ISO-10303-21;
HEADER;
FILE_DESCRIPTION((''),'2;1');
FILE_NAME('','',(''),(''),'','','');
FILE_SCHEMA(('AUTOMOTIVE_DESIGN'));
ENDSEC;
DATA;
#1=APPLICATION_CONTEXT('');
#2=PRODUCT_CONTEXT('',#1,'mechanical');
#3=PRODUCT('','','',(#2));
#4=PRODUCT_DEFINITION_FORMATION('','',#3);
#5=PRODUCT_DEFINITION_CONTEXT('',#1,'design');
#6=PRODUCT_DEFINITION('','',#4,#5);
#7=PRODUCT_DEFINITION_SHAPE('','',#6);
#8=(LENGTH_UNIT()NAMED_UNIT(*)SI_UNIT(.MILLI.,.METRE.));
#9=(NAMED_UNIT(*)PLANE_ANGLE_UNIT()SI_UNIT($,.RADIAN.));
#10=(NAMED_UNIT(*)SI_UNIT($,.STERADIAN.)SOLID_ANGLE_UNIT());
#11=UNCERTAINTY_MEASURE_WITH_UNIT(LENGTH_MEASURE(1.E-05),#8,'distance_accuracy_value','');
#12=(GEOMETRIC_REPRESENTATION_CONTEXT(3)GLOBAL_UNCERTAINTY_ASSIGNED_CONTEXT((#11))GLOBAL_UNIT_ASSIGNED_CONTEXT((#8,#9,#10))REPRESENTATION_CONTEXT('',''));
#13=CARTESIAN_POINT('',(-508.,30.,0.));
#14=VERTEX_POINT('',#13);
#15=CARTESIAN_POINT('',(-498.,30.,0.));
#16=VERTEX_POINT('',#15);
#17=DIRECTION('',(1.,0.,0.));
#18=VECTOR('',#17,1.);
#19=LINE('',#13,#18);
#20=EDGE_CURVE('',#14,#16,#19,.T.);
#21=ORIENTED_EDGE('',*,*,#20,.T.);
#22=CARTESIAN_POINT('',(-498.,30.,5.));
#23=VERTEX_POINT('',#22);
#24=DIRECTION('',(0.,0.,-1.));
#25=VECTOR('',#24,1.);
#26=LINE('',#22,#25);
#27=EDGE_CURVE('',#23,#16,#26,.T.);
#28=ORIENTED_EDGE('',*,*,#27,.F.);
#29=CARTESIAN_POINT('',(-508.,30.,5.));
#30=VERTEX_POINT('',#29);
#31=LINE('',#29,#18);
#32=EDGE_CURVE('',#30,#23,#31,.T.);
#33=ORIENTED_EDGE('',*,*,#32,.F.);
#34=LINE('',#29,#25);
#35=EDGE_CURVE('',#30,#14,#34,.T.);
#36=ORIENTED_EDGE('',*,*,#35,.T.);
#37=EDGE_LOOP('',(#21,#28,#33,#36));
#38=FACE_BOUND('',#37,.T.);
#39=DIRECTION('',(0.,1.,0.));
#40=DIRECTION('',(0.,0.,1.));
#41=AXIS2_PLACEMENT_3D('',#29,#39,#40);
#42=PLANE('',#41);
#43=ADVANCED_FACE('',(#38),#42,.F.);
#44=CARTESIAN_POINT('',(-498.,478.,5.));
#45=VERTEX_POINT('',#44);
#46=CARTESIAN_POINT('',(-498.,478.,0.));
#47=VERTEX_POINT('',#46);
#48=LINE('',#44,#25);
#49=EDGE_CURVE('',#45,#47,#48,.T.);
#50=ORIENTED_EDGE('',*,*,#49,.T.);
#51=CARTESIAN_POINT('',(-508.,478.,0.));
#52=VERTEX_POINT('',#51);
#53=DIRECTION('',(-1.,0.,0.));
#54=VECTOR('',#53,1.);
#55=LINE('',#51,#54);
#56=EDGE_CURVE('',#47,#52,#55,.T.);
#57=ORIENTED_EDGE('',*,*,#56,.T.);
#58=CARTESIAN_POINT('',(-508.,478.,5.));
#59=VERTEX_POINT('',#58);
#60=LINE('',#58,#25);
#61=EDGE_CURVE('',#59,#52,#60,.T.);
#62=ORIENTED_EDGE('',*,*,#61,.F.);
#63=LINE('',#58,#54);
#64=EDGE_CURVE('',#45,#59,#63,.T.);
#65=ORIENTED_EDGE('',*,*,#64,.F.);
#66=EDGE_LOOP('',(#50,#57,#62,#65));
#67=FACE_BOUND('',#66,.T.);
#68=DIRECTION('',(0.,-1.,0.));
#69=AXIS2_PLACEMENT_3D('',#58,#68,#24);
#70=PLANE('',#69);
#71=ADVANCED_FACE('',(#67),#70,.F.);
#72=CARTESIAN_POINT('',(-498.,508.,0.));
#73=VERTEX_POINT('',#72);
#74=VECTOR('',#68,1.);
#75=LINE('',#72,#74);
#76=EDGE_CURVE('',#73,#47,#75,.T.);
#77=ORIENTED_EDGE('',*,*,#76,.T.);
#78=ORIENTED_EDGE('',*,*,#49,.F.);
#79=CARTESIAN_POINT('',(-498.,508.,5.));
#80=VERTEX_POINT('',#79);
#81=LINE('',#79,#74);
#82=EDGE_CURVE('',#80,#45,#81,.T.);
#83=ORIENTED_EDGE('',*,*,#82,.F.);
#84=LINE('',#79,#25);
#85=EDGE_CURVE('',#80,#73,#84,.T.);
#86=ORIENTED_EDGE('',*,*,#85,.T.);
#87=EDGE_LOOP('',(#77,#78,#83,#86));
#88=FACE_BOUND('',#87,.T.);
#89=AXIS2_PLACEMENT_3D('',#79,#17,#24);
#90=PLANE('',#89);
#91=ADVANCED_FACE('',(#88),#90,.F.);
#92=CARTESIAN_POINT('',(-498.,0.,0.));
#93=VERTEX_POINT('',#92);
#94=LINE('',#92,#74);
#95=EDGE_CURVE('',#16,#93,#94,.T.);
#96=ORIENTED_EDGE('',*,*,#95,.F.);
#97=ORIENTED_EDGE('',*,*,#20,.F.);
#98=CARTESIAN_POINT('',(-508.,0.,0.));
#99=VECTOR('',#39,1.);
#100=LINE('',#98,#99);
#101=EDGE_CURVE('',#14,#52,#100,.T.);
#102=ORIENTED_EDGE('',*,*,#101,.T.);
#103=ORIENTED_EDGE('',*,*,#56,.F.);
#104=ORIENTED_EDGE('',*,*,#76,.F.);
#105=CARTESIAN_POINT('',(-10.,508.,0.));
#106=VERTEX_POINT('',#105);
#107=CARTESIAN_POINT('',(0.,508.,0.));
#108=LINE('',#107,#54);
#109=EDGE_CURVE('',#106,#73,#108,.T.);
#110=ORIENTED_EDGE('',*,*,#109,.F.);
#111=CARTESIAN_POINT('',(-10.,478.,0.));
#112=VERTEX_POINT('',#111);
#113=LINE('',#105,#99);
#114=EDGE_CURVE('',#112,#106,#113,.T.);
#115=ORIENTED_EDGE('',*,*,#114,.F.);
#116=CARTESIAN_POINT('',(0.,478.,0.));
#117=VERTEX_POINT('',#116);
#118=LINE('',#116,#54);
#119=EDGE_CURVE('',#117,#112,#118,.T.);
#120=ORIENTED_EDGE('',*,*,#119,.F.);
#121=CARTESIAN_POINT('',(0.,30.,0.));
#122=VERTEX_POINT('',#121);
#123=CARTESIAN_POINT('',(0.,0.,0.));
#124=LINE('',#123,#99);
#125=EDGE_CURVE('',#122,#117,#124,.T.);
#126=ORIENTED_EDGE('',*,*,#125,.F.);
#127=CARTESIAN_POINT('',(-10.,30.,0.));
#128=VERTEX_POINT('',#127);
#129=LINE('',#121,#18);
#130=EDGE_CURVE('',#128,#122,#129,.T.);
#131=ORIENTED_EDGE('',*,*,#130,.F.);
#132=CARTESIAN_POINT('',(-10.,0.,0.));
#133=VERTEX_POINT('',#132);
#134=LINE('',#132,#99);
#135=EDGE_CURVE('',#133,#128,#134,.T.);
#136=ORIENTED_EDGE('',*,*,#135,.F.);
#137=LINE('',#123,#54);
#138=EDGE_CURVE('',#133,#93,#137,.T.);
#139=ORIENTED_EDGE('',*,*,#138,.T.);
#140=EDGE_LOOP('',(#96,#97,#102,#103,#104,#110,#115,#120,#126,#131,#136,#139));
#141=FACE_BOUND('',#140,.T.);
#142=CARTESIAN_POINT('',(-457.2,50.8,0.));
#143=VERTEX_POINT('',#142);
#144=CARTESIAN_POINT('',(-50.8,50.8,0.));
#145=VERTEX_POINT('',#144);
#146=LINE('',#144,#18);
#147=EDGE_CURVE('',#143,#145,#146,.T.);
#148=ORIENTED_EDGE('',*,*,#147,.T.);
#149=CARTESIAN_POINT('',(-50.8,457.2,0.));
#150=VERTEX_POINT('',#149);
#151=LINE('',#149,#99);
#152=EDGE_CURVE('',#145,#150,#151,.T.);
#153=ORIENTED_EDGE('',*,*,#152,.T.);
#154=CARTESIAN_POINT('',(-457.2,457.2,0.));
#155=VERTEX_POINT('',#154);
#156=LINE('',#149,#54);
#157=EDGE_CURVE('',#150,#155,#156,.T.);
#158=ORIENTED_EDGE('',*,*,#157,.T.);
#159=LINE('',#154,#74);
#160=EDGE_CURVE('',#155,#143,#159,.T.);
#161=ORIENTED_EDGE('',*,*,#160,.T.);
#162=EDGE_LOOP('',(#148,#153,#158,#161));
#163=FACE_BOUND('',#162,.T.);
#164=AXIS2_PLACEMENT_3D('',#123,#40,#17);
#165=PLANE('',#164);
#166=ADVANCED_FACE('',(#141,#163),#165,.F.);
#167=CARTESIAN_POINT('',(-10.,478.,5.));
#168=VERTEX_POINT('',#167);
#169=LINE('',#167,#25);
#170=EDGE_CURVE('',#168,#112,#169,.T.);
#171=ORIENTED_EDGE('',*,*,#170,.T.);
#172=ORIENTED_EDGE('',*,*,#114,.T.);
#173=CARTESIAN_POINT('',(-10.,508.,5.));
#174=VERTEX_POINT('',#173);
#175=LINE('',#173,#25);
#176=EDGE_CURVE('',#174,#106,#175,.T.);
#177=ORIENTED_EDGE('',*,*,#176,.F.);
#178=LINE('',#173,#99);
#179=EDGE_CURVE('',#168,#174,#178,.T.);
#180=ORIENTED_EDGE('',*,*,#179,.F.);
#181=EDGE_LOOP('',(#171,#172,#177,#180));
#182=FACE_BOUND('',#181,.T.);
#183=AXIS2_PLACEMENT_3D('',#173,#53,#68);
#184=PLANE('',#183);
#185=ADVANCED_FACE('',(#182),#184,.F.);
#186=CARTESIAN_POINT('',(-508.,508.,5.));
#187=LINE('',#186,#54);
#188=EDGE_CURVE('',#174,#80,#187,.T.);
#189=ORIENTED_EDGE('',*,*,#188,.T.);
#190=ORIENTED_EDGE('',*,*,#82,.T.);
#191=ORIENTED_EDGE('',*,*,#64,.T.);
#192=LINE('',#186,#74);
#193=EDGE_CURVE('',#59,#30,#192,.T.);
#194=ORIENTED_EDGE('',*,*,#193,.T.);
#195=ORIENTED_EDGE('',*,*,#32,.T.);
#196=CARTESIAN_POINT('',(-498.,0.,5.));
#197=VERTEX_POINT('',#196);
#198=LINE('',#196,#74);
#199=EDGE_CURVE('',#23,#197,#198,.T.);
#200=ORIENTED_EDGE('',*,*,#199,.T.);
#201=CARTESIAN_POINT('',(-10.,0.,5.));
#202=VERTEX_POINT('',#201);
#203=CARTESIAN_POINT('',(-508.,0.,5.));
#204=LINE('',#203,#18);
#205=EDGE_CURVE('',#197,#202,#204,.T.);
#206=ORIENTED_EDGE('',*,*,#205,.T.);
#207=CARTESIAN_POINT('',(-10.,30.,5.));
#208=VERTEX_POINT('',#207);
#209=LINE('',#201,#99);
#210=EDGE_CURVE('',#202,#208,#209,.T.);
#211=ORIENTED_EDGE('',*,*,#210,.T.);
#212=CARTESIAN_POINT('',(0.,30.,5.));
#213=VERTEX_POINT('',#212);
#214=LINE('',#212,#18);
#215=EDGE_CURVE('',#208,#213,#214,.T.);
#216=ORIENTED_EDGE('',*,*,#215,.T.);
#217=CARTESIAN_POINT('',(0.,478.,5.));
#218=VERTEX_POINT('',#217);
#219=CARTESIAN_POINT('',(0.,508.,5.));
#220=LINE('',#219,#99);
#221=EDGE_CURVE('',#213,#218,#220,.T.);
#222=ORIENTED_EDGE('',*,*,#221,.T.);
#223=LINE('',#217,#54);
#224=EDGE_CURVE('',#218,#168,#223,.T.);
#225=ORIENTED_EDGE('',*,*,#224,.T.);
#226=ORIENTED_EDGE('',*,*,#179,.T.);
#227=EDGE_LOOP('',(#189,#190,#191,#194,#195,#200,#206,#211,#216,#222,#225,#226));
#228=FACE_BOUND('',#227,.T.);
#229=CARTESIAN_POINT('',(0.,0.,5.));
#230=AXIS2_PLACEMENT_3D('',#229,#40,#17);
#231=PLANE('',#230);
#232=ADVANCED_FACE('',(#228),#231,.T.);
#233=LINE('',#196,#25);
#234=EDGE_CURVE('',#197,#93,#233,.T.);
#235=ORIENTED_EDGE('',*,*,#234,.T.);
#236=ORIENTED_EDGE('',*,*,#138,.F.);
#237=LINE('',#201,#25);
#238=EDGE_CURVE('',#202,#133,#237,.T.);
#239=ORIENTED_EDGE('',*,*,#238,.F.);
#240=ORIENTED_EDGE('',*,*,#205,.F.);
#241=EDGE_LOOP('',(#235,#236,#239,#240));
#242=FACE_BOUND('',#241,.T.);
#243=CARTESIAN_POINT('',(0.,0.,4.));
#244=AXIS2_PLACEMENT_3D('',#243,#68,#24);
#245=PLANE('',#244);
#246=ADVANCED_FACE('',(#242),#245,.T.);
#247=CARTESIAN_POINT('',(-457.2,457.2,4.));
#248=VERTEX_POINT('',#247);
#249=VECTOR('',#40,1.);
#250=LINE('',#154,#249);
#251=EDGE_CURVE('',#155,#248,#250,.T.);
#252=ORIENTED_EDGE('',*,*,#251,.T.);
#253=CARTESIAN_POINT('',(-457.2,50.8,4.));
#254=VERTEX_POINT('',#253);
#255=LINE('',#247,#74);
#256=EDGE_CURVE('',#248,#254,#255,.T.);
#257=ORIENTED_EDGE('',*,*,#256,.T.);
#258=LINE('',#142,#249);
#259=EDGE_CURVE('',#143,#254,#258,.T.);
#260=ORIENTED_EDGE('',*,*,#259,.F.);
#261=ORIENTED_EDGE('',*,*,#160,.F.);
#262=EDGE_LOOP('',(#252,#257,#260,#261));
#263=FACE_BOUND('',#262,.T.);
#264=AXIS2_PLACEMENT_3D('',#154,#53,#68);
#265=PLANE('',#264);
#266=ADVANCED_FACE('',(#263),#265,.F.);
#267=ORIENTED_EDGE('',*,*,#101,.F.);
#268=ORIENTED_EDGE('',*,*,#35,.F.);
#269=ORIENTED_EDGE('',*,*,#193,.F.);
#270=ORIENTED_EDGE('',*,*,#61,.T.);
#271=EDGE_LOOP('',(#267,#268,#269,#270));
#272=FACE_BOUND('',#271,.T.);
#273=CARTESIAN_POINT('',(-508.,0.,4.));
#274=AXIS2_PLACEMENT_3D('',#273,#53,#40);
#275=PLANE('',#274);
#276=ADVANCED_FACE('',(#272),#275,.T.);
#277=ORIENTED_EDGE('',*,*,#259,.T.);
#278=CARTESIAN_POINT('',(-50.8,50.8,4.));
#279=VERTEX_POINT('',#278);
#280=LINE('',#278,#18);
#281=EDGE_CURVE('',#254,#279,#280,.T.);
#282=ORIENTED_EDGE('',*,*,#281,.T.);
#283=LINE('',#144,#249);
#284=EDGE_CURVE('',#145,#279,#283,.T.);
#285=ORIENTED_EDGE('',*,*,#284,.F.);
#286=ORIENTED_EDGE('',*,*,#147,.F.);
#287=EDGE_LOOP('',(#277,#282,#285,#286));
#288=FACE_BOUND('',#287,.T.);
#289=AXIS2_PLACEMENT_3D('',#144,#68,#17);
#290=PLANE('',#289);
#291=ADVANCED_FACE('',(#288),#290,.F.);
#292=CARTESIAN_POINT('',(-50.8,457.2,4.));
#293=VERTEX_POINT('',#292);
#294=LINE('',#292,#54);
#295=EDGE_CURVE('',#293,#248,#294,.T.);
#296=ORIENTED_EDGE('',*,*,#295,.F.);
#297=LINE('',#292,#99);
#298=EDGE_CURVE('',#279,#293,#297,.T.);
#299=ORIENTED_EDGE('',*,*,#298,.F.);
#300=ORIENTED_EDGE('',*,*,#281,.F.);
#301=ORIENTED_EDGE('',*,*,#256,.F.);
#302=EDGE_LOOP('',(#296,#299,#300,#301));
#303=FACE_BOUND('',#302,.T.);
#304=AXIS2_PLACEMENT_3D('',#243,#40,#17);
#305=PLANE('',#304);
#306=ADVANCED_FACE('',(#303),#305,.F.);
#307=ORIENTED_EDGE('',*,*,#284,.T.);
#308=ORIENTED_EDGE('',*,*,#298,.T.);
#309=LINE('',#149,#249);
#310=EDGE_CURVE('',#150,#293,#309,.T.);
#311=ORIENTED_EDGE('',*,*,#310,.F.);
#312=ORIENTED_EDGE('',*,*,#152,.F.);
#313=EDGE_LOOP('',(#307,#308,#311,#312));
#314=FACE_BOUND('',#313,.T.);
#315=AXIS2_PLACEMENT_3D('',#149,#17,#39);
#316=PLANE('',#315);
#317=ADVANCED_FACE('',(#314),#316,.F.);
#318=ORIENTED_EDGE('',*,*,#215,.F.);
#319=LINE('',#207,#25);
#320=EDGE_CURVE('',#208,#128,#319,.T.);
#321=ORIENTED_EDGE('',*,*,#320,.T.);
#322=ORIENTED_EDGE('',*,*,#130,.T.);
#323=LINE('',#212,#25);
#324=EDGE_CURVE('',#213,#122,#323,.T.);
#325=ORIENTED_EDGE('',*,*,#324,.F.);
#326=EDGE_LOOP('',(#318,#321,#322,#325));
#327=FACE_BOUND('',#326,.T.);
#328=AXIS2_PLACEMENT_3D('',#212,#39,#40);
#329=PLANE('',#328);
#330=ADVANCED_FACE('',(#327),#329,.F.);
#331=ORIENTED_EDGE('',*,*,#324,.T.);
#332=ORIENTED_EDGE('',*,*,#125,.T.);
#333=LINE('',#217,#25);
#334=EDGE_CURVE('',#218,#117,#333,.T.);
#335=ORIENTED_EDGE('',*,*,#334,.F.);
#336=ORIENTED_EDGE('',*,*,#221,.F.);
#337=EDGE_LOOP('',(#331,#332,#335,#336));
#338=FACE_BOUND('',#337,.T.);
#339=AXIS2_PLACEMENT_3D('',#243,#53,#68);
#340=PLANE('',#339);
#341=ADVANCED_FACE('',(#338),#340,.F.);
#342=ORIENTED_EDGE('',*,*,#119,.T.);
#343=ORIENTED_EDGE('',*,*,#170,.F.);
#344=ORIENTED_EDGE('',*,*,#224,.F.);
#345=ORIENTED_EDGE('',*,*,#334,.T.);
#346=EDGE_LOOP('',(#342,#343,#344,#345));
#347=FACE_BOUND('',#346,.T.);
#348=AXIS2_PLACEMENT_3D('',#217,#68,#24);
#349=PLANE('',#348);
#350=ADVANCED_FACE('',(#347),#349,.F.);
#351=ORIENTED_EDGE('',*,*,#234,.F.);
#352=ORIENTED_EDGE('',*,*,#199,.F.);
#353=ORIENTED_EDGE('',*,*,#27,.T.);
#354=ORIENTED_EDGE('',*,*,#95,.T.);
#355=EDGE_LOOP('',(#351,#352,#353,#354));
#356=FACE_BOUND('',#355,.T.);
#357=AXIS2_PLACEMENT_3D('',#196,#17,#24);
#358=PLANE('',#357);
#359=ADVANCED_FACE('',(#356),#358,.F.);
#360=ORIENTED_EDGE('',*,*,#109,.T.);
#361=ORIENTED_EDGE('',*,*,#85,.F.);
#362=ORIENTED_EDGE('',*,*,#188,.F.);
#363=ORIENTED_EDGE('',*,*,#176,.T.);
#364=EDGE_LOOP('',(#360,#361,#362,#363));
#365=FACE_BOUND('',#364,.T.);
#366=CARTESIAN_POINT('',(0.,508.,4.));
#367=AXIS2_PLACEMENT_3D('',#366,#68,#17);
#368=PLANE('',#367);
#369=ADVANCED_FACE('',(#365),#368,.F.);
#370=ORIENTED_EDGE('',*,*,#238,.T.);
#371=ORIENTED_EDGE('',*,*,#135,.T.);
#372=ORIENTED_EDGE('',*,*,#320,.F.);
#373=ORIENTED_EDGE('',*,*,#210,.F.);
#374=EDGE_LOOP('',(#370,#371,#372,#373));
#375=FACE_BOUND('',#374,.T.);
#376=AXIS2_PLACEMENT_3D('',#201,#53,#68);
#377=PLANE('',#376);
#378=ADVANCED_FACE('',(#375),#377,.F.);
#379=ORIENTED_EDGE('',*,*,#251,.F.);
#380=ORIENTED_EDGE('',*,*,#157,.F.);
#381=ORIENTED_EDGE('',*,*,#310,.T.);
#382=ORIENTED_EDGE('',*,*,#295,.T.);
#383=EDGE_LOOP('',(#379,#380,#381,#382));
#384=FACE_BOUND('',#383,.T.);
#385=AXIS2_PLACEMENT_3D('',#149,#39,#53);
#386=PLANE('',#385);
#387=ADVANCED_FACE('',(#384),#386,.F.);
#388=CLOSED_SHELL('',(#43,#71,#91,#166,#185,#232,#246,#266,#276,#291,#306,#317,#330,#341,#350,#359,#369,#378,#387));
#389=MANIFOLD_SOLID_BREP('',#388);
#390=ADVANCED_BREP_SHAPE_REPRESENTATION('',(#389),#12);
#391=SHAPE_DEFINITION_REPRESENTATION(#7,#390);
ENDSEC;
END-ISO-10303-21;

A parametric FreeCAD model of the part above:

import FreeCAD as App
import Part
import Sketcher

V = App.Vector

doc = App.newDocument("Part")
body = doc.addObject("PartDesign::Body", "Body")

# Sketch on XY plane
sketch1 = doc.addObject("Sketcher::SketchObject", "Sketch")
body.addObject(sketch1)
sketch1.AttachmentSupport = (doc.XY_Plane, [""])
sketch1.MapMode = "FlatFace"
sketch1.addGeometry([
    Part.LineSegment(V(-508, 508, 0), V(-508, 0, 0)),
    Part.LineSegment(V(-508, 0, 0), V(0, 0, 0)),
    Part.LineSegment(V(0, 0, 0), V(0, 508, 0)),
    Part.LineSegment(V(0, 508, 0), V(-508, 508, 0)),
], False)
sketch1.addConstraint([
    Sketcher.Constraint("Coincident", 0, 2, 1, 1),
    Sketcher.Constraint("Coincident", 1, 2, 2, 1),
    Sketcher.Constraint("Coincident", 2, 2, 3, 1),
    Sketcher.Constraint("Coincident", 3, 2, 0, 1),
    Sketcher.Constraint("Vertical", 0),
    Sketcher.Constraint("Horizontal", 1),
    Sketcher.Constraint("Vertical", 2),
    Sketcher.Constraint("Horizontal", 3),
    Sketcher.Constraint("Coincident", 1, 2, -1, 1),
    Sketcher.Constraint("Equal", 3, 0),
    Sketcher.Constraint("DistanceX", 1, 1, 1, 2, 508.0),
])
pad1 = doc.addObject("PartDesign::Pad", "Pad")
body.addObject(pad1)
pad1.Profile = sketch1
pad1.Length = 4

# Sketch on XY plane
sketch2 = doc.addObject("Sketcher::SketchObject", "Sketch001")
body.addObject(sketch2)
sketch2.AttachmentSupport = (doc.XY_Plane, [""])
sketch2.MapMode = "FlatFace"
sketch2.AttachmentOffset = App.Placement(V(0, 0, 4), App.Rotation())
sketch2.addGeometry([
    Part.LineSegment(V(-457, 457, 0), V(-457, 51, 0)),
    Part.LineSegment(V(-457, 51, 0), V(-51, 51, 0)),
    Part.LineSegment(V(-51, 51, 0), V(-51, 457, 0)),
    Part.LineSegment(V(-51, 457, 0), V(-457, 457, 0)),
], False)
sketch2.addConstraint([
    Sketcher.Constraint("Coincident", 0, 2, 1, 1),
    Sketcher.Constraint("Coincident", 1, 2, 2, 1),
    Sketcher.Constraint("Coincident", 2, 2, 3, 1),
    Sketcher.Constraint("Coincident", 3, 2, 0, 1),
    Sketcher.Constraint("Vertical", 0),
    Sketcher.Constraint("Horizontal", 1),
    Sketcher.Constraint("Vertical", 2),
    Sketcher.Constraint("Horizontal", 3),
    Sketcher.Constraint("Equal", 3, 0),
    Sketcher.Constraint("DistanceX", 1, 1, 1, 2, 406.4),
    Sketcher.Constraint("DistanceX", 0, 2, -1, 1, 457.2),
    Sketcher.Constraint("DistanceY", -1, 1, 0, 2, 50.8),
])
pocket1 = doc.addObject("PartDesign::Pocket", "Pocket")
body.addObject(pocket1)
pocket1.Profile = sketch2
pocket1.Length = 4

# Sketch on XY plane
sketch3 = doc.addObject("Sketcher::SketchObject", "Sketch002")
body.addObject(sketch3)
sketch3.AttachmentSupport = (doc.XY_Plane, [""])
sketch3.MapMode = "FlatFace"
sketch3.AttachmentOffset = App.Placement(V(0, 0, 4), App.Rotation())
sketch3.addGeometry([
    Part.LineSegment(V(-508, 508, 0), V(-508, 0, 0)),
    Part.LineSegment(V(-508, 0, 0), V(0, 0, 0)),
    Part.LineSegment(V(0, 0, 0), V(0, 508, 0)),
    Part.LineSegment(V(0, 508, 0), V(-508, 508, 0)),
], False)
sketch3.addConstraint([
    Sketcher.Constraint("Coincident", 0, 2, 1, 1),
    Sketcher.Constraint("Coincident", 1, 2, 2, 1),
    Sketcher.Constraint("Coincident", 2, 2, 3, 1),
    Sketcher.Constraint("Coincident", 3, 2, 0, 1),
    Sketcher.Constraint("Vertical", 0),
    Sketcher.Constraint("Horizontal", 1),
    Sketcher.Constraint("Vertical", 2),
    Sketcher.Constraint("Horizontal", 3),
    Sketcher.Constraint("Coincident", 1, 2, -1, 1),
    Sketcher.Constraint("Equal", 3, 0),
    Sketcher.Constraint("DistanceX", 1, 1, 1, 2, 508.0),
])
pad2 = doc.addObject("PartDesign::Pad", "Pad001")
body.addObject(pad2)
pad2.Profile = sketch3
pad2.Length = 1

# Sketch on XY plane
sketch4 = doc.addObject("Sketcher::SketchObject", "Sketch003")
body.addObject(sketch4)
sketch4.AttachmentSupport = (doc.XY_Plane, [""])
sketch4.MapMode = "FlatFace"
sketch4.addGeometry([
    Part.LineSegment(V(0, 508, 0), V(0, 478, 0)),  # 0
    Part.LineSegment(V(0, 478, 0), V(-10, 478, 0)),  # 1
    Part.LineSegment(V(-10, 478, 0), V(-10, 508, 0)),  # 2
    Part.LineSegment(V(-10, 508, 0), V(0, 508, 0)),  # 3
    Part.LineSegment(V(-498, 508, 0), V(-498, 478, 0)),  # 4
    Part.LineSegment(V(-498, 478, 0), V(-508, 478, 0)),  # 5
    Part.LineSegment(V(-508, 478, 0), V(-508, 508, 0)),  # 6
    Part.LineSegment(V(-508, 508, 0), V(-498, 508, 0)),  # 7
    Part.LineSegment(V(-498, 30, 0), V(-498, 0, 0)),  # 8
    Part.LineSegment(V(-498, 0, 0), V(-508, 0, 0)),  # 9
    Part.LineSegment(V(-508, 0, 0), V(-508, 30, 0)),  # 10
    Part.LineSegment(V(-508, 30, 0), V(-498, 30, 0)),  # 11
    Part.LineSegment(V(0, 30, 0), V(0, 0, 0)),  # 12
    Part.LineSegment(V(0, 0, 0), V(-10, 0, 0)),  # 13
    Part.LineSegment(V(-10, 0, 0), V(-10, 30, 0)),  # 14
    Part.LineSegment(V(-10, 30, 0), V(0, 30, 0)),  # 15
], False)
sketch4.addConstraint([
    Sketcher.Constraint("Coincident", 0, 2, 1, 1),
    Sketcher.Constraint("Coincident", 1, 2, 2, 1),
    Sketcher.Constraint("Coincident", 2, 2, 3, 1),
    Sketcher.Constraint("Coincident", 3, 2, 0, 1),
    Sketcher.Constraint("Coincident", 4, 2, 5, 1),
    Sketcher.Constraint("Coincident", 5, 2, 6, 1),
    Sketcher.Constraint("Coincident", 6, 2, 7, 1),
    Sketcher.Constraint("Coincident", 7, 2, 4, 1),
    Sketcher.Constraint("Coincident", 8, 2, 9, 1),
    Sketcher.Constraint("Coincident", 9, 2, 10, 1),
    Sketcher.Constraint("Coincident", 10, 2, 11, 1),
    Sketcher.Constraint("Coincident", 11, 2, 8, 1),
    Sketcher.Constraint("Coincident", 12, 2, 13, 1),
    Sketcher.Constraint("Coincident", 13, 2, 14, 1),
    Sketcher.Constraint("Coincident", 14, 2, 15, 1),
    Sketcher.Constraint("Coincident", 15, 2, 12, 1),
    Sketcher.Constraint("Vertical", 0),
    Sketcher.Constraint("Horizontal", 1),
    Sketcher.Constraint("Vertical", 2),
    Sketcher.Constraint("Horizontal", 3),
    Sketcher.Constraint("Vertical", 4),
    Sketcher.Constraint("Horizontal", 5),
    Sketcher.Constraint("Vertical", 6),
    Sketcher.Constraint("Horizontal", 7),
    Sketcher.Constraint("Vertical", 8),
    Sketcher.Constraint("Horizontal", 9),
    Sketcher.Constraint("Vertical", 10),
    Sketcher.Constraint("Horizontal", 11),
    Sketcher.Constraint("Vertical", 12),
    Sketcher.Constraint("Horizontal", 13),
    Sketcher.Constraint("Vertical", 14),
    Sketcher.Constraint("Horizontal", 15),
    Sketcher.Constraint("Coincident", 12, 2, -1, 1),
    Sketcher.Constraint("PointOnObject", 0, 2, -2),
    Sketcher.Constraint("PointOnObject", 8, 2, -1),
    Sketcher.Constraint("Horizontal", 1, 2, 4, 2),
    Sketcher.Constraint("Horizontal", 3, 2, 6, 2),
    Sketcher.Constraint("Horizontal", 11, 2, 14, 2),
    Sketcher.Constraint("Vertical", 7, 2, 8, 2),
    Sketcher.Constraint("Vertical", 6, 2, 9, 2),
    Sketcher.Constraint("Vertical", 2, 2, 13, 2),
    Sketcher.Constraint("Equal", 3, 5),
    Sketcher.Constraint("Equal", 6, 8),
    Sketcher.Constraint("DistanceX", 1, 2, 1, 1, 10.0),
    Sketcher.Constraint("DistanceY", 0, 2, 0, 1, 30.0),
    Sketcher.Constraint("DistanceY", -1, 1, 0, 2, 478.0),
    Sketcher.Constraint("DistanceX", 4, 2, -1, 1, 498.0),
])
pocket2 = doc.addObject("PartDesign::Pocket", "Pocket001")
body.addObject(pocket2)
pocket2.Profile = sketch4
pocket2.Length = 5
pocket2.Reversed = True

doc.recompute()
